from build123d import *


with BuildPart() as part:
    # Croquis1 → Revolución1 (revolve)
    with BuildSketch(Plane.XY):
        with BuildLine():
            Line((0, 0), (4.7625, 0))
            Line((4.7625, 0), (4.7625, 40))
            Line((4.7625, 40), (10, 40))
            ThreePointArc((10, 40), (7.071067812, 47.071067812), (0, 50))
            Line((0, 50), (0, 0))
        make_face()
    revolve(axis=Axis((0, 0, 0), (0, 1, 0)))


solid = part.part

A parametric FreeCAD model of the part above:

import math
import FreeCAD as App
import Part
import Sketcher

doc = App.newDocument("Part")
body = doc.addObject("PartDesign::Body", "Body")

sketch1 = doc.addObject("Sketcher::SketchObject", "Sketch")
body.addObject(sketch1)
sketch1.AttachmentSupport = (doc.XY_Plane, [""])
sketch1.MapMode = "FlatFace"
sketch1.addGeometry(Part.LineSegment(App.Vector(0, 0, 0), App.Vector(4.8, 0, 0)), False)
sketch1.addGeometry(Part.LineSegment(App.Vector(4.8, 0, 0), App.Vector(4.8, 40, 0)), False)
sketch1.addGeometry(Part.LineSegment(App.Vector(4.8, 40, 0), App.Vector(10, 40, 0)), False)
sketch1.addGeometry(Part.ArcOfCircle(Part.Circle(App.Vector(0, 40, 0), App.Vector(0, 0, 1), 10), math.radians(0), math.radians(90)), False)
sketch1.addGeometry(Part.LineSegment(App.Vector(0, 50, 0), App.Vector(0, 0, 0)), False)
sketch1.addConstraint(Sketcher.Constraint("Coincident", 0, 2, 1, 1))
sketch1.addConstraint(Sketcher.Constraint("Coincident", 1, 2, 2, 1))
sketch1.addConstraint(Sketcher.Constraint("Coincident", 2, 2, 3, 1))
sketch1.addConstraint(Sketcher.Constraint("Coincident", 3, 2, 4, 1))
sketch1.addConstraint(Sketcher.Constraint("Coincident", 4, 2, 0, 1))
sketch1.addConstraint(Sketcher.Constraint("Horizontal", 0))
sketch1.addConstraint(Sketcher.Constraint("Vertical", 1))
sketch1.addConstraint(Sketcher.Constraint("Horizontal", 2))
sketch1.addConstraint(Sketcher.Constraint("Vertical", 4))
sketch1.addConstraint(Sketcher.Constraint("Coincident", 4, 2, -1, 1))
sketch1.addConstraint(Sketcher.Constraint("PointOnObject", 3, 3, -2))
sketch1.addConstraint(Sketcher.Constraint("Horizontal", 3, 3, 1, 2))
sketch1.addConstraint(Sketcher.Constraint("Radius", 3, 10.0))
sketch1.addConstraint(Sketcher.Constraint("DistanceY", 1, 1, 1, 2, 40.0))
sketch1.addConstraint(Sketcher.Constraint("DistanceX", 0, 1, 0, 2, 4.7625))
revolution = doc.addObject("PartDesign::Revolution", "Revolution")
body.addObject(revolution)
revolution.Profile = sketch1
revolution.ReferenceAxis = (sketch1, ["V_Axis"])
revolution.Angle = 360

doc.recompute()
